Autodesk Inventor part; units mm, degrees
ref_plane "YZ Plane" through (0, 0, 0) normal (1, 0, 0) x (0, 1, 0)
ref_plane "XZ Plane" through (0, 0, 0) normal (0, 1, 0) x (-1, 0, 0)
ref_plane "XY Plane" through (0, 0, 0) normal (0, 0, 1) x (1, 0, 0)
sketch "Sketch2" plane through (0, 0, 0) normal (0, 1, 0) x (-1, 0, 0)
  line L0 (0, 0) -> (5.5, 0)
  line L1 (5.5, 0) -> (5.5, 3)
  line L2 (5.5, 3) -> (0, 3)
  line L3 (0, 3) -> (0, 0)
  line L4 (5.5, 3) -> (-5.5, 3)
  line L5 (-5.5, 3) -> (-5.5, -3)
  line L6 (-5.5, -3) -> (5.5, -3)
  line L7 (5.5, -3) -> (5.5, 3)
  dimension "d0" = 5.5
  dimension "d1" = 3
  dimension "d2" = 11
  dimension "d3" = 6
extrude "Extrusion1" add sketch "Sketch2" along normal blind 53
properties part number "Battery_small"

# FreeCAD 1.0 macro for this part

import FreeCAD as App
import Part
import Sketcher
Q = App.Units.Quantity


def add_polygon(sketch, points):
    """Adds a closed chain of lines whose ends are joined by coincident constraints."""
    first, n = sketch.GeometryCount, len(points)
    for a, b in zip(points, points[1:] + points[:1]):
        sketch.addGeometry(Part.LineSegment(App.Vector(*a, 0), App.Vector(*b, 0)), False)
    for i in range(n):
        sketch.addConstraint(Sketcher.Constraint("Coincident", first + i, 2, first + (i + 1) % n, 1))

doc = App.newDocument("Part")
params = doc.addObject("Spreadsheet::Sheet", "Params")
for row, (alias, value) in enumerate([
    ("sketch1_width", "11 mm"),
    ("sketch1_height", "6 mm"),
    ("pad1_length", "53 mm"),
], start=1):
    params.set(f"A{row}", alias)
    params.set(f"B{row}", "=" + value)
    params.setAlias(f"B{row}", alias)

body = doc.addObject("PartDesign::Body", "Body")

# Sketch on XZ plane
sketch1 = body.newObject("Sketcher::SketchObject", "Sketch")
sketch1.AttachmentSupport = (doc.getObject("XZ_Plane"), [""])
sketch1.MapMode = "FlatFace"
add_polygon(sketch1, [(-6, 3), (6, 3), (6, -3), (-6, -3)])  # lines 0-3
sketch1.addConstraint([
    Sketcher.Constraint("Horizontal", 0),
    Sketcher.Constraint("Vertical", 1),
    Sketcher.Constraint("Horizontal", 2),
    Sketcher.Constraint("Vertical", 3),
    Sketcher.Constraint("Symmetric", 0, 2, 2, 2, -1, 1),
    Sketcher.Constraint("DistanceX", 0, 1, 0, 2, Q("11 mm")),
    Sketcher.Constraint("DistanceY", 1, 2, 1, 1, Q("6 mm")),
])
sketch1.setExpression("Constraints[9]", "Params.sketch1_width")
sketch1.setExpression("Constraints[10]", "Params.sketch1_height")
pad1 = body.newObject("PartDesign::Pad", "Pad")
pad1.Profile = sketch1
pad1.setExpression("Length", "Params.pad1_length")
pad1.Reversed = True

doc.recompute()
